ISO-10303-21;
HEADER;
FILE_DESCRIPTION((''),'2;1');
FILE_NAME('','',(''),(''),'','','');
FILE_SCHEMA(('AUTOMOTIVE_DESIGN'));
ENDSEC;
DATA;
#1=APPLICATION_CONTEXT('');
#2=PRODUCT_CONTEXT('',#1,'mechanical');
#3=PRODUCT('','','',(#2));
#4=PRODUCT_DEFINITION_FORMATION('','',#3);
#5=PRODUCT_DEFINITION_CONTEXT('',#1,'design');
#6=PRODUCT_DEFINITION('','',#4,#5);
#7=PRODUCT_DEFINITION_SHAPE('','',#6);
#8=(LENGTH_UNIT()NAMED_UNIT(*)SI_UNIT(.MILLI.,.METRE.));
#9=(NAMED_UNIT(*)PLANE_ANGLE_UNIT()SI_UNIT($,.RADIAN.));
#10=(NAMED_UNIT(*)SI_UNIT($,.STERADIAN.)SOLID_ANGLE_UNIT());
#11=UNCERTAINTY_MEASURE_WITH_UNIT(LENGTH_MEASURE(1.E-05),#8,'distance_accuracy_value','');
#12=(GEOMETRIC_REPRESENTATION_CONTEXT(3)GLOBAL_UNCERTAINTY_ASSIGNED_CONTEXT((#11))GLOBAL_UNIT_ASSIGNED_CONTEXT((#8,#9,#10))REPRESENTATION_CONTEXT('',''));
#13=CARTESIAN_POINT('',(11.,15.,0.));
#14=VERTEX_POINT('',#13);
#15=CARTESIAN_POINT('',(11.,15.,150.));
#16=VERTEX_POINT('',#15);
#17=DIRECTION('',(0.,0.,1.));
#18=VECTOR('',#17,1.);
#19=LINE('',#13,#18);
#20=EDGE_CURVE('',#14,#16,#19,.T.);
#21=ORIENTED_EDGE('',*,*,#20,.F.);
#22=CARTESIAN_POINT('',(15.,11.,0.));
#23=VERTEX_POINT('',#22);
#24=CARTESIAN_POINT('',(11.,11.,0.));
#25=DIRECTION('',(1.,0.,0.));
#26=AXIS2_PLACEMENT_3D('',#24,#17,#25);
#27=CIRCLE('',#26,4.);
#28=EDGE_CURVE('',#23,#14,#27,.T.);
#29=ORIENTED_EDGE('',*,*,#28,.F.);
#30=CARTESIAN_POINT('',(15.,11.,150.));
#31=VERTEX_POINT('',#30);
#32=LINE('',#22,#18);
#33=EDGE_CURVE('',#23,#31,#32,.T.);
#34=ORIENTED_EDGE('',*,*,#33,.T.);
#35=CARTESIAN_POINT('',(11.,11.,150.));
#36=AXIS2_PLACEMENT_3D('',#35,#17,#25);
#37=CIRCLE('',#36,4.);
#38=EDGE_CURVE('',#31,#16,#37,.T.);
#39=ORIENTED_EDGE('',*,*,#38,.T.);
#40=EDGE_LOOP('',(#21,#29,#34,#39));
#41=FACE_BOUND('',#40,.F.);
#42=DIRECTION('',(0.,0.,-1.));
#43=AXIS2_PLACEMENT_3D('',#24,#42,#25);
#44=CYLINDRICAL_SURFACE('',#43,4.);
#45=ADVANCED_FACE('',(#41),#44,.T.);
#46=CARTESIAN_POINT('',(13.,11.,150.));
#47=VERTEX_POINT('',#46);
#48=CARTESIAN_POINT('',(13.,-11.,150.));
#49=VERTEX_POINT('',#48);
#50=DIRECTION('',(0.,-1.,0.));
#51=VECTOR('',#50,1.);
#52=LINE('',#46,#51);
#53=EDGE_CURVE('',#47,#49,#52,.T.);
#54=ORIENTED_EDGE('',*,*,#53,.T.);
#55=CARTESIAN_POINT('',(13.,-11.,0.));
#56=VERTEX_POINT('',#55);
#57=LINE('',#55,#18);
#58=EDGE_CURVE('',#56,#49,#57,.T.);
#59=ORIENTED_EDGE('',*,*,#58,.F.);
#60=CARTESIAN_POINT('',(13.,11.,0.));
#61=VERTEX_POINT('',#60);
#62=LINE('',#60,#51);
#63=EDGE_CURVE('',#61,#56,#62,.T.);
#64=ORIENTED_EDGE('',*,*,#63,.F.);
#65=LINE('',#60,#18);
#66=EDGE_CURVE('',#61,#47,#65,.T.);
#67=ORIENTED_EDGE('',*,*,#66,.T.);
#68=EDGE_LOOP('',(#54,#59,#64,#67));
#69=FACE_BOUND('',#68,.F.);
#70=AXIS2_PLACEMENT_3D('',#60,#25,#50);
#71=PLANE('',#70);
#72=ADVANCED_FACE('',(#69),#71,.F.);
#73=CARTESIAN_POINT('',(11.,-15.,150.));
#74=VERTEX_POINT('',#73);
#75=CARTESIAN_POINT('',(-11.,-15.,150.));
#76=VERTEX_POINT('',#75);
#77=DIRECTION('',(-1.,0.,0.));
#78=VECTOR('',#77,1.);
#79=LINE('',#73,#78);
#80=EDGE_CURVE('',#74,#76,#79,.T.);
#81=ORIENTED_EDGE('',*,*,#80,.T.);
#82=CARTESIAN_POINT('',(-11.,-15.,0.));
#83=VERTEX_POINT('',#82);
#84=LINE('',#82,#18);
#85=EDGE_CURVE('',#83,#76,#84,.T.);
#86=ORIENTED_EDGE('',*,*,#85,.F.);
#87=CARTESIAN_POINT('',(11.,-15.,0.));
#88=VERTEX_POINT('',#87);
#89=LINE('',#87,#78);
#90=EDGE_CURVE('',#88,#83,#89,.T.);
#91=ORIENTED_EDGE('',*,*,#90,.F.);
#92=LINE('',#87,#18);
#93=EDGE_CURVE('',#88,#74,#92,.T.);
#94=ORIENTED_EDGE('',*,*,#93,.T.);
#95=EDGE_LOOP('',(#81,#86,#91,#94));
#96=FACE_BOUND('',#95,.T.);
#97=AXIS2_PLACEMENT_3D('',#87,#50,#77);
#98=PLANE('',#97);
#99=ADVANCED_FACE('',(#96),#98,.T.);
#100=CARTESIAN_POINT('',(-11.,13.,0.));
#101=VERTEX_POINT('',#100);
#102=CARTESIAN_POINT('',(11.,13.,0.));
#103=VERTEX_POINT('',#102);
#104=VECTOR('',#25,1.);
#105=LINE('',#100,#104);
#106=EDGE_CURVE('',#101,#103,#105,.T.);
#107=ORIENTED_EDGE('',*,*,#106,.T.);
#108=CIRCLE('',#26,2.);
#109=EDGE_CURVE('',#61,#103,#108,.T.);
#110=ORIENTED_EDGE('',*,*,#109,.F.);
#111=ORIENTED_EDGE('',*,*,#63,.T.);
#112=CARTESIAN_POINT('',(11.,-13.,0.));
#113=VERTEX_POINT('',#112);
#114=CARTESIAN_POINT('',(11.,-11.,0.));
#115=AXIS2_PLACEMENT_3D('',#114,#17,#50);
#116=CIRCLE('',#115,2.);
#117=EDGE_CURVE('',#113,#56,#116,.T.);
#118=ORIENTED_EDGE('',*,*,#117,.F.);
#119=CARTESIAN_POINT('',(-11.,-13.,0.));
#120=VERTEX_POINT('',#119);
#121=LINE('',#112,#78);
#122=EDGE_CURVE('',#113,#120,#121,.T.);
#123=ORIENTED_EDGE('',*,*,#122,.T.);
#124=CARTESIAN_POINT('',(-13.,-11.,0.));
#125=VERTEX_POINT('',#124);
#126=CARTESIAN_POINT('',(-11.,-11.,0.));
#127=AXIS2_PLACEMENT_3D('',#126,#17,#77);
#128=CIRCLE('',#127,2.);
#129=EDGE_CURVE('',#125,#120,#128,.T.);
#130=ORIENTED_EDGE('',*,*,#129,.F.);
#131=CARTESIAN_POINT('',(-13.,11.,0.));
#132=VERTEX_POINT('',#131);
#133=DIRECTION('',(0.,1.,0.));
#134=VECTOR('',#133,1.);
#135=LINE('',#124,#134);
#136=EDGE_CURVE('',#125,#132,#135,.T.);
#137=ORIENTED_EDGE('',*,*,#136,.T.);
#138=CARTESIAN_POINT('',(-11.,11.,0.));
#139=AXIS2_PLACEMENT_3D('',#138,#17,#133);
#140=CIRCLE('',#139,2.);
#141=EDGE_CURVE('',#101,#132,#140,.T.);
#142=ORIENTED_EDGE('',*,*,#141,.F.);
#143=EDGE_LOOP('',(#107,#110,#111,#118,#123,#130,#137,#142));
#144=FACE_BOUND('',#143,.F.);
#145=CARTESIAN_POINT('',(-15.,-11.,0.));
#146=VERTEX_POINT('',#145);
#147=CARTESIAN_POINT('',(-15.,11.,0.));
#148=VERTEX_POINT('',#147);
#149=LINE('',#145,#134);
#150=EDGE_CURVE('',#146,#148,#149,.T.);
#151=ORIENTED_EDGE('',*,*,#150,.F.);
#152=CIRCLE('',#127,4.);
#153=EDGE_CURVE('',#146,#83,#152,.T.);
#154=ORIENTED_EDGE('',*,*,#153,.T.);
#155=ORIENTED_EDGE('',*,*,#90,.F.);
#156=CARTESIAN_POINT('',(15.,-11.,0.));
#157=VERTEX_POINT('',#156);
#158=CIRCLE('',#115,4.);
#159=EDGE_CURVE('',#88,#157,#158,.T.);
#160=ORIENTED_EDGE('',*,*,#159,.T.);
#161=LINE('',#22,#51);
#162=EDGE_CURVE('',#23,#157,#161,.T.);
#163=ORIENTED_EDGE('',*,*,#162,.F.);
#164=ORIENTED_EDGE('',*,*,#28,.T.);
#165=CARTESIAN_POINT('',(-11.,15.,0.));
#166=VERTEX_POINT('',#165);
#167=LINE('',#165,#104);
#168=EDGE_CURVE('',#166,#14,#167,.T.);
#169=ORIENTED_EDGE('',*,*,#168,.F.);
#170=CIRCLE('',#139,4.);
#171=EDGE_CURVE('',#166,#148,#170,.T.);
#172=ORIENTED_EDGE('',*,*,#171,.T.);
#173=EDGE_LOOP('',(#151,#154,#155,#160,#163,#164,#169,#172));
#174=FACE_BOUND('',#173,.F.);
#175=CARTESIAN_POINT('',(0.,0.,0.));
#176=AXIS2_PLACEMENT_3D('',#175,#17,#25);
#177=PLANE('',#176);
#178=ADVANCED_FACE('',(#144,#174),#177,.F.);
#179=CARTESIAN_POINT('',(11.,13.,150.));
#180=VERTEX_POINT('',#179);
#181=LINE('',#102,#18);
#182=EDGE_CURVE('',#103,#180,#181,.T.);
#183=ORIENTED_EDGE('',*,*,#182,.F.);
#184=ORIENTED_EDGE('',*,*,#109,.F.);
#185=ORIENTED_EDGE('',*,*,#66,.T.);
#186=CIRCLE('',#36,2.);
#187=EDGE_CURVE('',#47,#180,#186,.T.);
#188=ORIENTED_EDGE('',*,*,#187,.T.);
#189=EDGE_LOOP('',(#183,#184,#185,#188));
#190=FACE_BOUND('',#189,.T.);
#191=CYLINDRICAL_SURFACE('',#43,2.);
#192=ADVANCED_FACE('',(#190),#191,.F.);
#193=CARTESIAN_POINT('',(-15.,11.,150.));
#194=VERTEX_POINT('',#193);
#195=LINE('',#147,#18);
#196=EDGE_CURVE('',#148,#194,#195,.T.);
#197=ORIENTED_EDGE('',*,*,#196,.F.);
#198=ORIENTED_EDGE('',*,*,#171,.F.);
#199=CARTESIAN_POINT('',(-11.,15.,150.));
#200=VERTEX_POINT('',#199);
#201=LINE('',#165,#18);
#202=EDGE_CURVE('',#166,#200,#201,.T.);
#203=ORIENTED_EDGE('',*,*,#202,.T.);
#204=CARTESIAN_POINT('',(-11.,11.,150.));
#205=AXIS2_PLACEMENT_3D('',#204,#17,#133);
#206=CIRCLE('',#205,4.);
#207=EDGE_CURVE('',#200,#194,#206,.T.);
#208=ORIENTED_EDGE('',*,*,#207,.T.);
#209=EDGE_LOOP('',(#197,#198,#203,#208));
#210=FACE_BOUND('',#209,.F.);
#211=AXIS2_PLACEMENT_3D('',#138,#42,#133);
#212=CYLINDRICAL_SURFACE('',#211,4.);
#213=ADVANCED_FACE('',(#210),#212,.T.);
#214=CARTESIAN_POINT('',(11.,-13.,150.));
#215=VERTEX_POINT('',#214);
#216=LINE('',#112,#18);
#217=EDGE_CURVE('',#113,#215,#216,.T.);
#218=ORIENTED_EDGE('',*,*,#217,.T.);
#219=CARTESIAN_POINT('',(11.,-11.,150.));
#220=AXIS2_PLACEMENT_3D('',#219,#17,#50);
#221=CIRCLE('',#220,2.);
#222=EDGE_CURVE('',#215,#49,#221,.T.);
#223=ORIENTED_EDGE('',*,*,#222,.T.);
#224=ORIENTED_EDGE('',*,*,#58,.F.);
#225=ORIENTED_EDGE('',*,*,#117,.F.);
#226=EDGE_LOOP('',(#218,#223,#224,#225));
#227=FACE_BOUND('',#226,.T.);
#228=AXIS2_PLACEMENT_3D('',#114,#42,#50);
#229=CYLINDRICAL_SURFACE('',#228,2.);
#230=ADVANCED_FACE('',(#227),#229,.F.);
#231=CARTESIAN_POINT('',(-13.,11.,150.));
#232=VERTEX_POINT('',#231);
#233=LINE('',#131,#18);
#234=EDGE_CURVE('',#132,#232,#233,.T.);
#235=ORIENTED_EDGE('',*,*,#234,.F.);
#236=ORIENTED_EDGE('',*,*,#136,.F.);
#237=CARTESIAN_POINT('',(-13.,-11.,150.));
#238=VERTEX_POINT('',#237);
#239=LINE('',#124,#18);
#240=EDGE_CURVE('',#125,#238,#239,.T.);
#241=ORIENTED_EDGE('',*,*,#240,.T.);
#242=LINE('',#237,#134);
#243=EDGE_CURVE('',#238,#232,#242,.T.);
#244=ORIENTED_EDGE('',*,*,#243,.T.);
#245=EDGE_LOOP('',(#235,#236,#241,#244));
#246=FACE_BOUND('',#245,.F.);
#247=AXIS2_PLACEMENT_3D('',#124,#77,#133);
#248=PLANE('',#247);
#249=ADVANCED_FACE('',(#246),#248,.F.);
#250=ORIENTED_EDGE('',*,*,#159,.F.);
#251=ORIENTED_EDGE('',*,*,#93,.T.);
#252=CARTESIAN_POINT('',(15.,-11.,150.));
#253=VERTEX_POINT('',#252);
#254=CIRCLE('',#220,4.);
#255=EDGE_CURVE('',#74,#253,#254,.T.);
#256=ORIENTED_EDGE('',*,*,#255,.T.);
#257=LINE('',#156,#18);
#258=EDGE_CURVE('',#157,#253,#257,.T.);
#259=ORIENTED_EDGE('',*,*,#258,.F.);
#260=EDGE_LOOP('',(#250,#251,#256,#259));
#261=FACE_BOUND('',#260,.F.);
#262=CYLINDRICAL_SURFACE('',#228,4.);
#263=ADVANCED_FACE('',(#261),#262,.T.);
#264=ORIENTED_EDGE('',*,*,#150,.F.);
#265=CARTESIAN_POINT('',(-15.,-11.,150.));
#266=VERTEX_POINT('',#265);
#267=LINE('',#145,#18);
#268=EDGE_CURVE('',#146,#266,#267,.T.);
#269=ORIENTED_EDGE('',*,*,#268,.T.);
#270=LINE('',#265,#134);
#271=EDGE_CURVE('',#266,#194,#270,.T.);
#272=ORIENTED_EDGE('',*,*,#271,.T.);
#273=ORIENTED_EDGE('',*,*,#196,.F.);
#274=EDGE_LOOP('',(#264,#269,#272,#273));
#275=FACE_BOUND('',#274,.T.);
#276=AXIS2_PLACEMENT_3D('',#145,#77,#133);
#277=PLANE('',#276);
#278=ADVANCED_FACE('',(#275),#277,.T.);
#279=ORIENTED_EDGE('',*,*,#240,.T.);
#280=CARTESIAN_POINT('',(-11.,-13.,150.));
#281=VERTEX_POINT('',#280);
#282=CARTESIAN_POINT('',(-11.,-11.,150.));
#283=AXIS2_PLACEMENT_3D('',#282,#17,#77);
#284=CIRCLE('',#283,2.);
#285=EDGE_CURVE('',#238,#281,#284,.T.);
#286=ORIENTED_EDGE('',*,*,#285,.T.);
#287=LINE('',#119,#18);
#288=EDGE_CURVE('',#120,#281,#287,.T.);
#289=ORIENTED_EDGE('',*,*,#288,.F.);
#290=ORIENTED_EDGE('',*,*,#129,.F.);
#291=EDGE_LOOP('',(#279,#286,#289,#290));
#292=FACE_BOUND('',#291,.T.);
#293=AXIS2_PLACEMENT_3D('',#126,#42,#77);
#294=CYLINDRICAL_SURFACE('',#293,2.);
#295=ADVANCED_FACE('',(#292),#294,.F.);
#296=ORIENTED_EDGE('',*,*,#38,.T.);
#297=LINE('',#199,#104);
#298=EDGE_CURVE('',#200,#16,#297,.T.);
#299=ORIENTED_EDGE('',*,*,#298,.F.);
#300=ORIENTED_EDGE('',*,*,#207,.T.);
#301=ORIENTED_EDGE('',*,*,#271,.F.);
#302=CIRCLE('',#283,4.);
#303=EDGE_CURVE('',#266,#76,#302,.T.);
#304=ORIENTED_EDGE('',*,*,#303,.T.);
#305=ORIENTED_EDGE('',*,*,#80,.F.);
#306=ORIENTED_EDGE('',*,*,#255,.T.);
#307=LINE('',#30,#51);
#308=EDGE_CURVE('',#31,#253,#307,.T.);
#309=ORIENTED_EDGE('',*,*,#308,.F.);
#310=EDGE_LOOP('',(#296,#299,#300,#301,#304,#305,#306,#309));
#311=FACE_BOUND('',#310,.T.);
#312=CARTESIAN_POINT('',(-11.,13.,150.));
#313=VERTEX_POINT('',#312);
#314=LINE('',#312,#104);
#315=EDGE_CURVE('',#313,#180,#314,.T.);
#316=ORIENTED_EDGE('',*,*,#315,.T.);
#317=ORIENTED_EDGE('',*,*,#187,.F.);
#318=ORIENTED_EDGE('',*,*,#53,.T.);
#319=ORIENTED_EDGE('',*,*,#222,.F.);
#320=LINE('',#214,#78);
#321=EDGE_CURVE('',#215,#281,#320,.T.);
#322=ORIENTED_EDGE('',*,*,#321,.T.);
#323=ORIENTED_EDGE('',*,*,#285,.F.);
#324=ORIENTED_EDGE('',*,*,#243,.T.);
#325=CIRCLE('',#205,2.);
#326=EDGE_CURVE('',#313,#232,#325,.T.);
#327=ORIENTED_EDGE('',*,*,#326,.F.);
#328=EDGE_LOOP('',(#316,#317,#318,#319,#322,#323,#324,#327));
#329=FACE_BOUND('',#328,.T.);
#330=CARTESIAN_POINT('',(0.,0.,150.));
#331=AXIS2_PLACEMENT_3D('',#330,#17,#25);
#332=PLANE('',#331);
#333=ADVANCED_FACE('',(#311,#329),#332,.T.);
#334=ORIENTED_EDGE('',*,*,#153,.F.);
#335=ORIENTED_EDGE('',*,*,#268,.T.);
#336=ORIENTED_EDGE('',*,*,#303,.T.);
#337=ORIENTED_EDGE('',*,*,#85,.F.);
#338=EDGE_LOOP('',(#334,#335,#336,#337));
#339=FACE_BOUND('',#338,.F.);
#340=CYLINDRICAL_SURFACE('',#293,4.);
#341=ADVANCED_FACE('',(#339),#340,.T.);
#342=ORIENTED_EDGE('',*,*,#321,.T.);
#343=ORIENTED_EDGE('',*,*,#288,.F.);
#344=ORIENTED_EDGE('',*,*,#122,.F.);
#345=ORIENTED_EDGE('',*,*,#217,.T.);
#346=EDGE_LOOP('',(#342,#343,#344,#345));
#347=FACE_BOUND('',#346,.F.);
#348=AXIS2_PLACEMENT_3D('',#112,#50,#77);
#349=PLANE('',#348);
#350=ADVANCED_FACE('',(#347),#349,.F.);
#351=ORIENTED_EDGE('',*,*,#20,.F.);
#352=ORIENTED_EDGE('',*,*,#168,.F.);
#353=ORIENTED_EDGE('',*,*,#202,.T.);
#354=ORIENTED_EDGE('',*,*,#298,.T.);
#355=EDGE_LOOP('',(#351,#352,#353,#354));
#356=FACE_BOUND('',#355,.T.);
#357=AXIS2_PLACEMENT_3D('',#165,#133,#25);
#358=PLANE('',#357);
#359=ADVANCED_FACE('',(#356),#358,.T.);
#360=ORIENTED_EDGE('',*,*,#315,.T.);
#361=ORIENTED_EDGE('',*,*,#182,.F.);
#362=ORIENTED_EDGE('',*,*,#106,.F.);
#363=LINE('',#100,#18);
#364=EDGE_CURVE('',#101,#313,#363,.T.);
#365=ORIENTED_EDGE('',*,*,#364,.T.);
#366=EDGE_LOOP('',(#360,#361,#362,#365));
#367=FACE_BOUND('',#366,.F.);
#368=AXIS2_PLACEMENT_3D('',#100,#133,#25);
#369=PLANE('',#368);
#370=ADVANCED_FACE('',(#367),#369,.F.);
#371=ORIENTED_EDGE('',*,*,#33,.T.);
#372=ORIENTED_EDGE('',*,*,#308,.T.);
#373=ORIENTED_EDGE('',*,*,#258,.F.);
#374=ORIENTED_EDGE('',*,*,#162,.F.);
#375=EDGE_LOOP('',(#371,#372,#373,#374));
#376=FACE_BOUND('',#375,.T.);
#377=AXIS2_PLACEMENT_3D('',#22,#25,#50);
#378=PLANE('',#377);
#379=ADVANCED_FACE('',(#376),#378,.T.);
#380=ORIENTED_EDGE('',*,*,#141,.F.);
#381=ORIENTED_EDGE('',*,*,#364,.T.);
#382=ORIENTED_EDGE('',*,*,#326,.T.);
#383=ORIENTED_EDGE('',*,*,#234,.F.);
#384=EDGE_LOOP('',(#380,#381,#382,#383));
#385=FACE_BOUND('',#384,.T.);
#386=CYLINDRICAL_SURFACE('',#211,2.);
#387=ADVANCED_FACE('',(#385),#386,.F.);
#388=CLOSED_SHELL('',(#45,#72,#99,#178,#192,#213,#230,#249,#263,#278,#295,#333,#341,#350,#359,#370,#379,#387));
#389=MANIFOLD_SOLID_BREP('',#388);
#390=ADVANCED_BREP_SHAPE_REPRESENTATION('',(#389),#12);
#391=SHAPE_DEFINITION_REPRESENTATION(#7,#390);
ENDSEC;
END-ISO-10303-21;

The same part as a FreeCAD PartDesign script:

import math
import FreeCAD as App
import Part
import Sketcher
from FreeCAD import Vector
Q = App.Units.Quantity

doc = App.newDocument("Part")
body = doc.addObject("PartDesign::Body", "Body")

sketch1 = body.newObject("Sketcher::SketchObject", "Sketch")
sketch1.AttachmentSupport = (doc.getObject("XY_Plane"), [""])
sketch1.MapMode = "FlatFace"
sketch1.addGeometry([
    Part.LineSegment(Vector(-15, 11, 0), Vector(-15, -11, 0)),
    Part.ArcOfCircle(Part.Circle(Vector(-11, -11, 0), Vector(0, 0, 1), 4), math.radians(180), math.radians(270)),
    Part.LineSegment(Vector(-11, -15, 0), Vector(11, -15, 0)),
    Part.ArcOfCircle(Part.Circle(Vector(11, -11, 0), Vector(0, 0, 1), 4), math.radians(-90), math.radians(0)),
    Part.LineSegment(Vector(15, -11, 0), Vector(15, 11, 0)),
    Part.ArcOfCircle(Part.Circle(Vector(11, 11, 0), Vector(0, 0, 1), 4), math.radians(0), math.radians(90)),
    Part.LineSegment(Vector(11, 15, 0), Vector(-11, 15, 0)),
    Part.ArcOfCircle(Part.Circle(Vector(-11, 11, 0), Vector(0, 0, 1), 4), math.radians(90), math.radians(180)),
    Part.ArcOfCircle(Part.Circle(Vector(-11, 11, 0), Vector(0, 0, 1), 2), math.radians(90), math.radians(180)),
    Part.LineSegment(Vector(-11, 13, 0), Vector(11, 13, 0)),
    Part.ArcOfCircle(Part.Circle(Vector(11, 11, 0), Vector(0, 0, 1), 2), math.radians(0), math.radians(90)),
    Part.LineSegment(Vector(13, 11, 0), Vector(13, -11, 0)),
    Part.ArcOfCircle(Part.Circle(Vector(11, -11, 0), Vector(0, 0, 1), 2), math.radians(-90), math.radians(0)),
    Part.LineSegment(Vector(11, -13, 0), Vector(-11, -13, 0)),
    Part.ArcOfCircle(Part.Circle(Vector(-11, -11, 0), Vector(0, 0, 1), 2), math.radians(180), math.radians(270)),
    Part.LineSegment(Vector(-13, -11, 0), Vector(-13, 11, 0)),
], False)
sketch1.addConstraint([
    Sketcher.Constraint("Tangent", 0, 2, 1, 1),
    Sketcher.Constraint("Tangent", 1, 2, 2, 1),
    Sketcher.Constraint("Tangent", 2, 2, 3, 1),
    Sketcher.Constraint("Tangent", 3, 2, 4, 1),
    Sketcher.Constraint("Tangent", 4, 2, 5, 1),
    Sketcher.Constraint("Tangent", 5, 2, 6, 1),
    Sketcher.Constraint("Tangent", 6, 2, 7, 1),
    Sketcher.Constraint("Tangent", 7, 2, 0, 1),
    Sketcher.Constraint("Tangent", 8, 1, 9, 1),
    Sketcher.Constraint("Tangent", 9, 2, 10, 2),
    Sketcher.Constraint("Tangent", 10, 1, 11, 1),
    Sketcher.Constraint("Tangent", 11, 2, 12, 2),
    Sketcher.Constraint("Tangent", 12, 1, 13, 1),
    Sketcher.Constraint("Tangent", 13, 2, 14, 2),
    Sketcher.Constraint("Tangent", 14, 1, 15, 1),
    Sketcher.Constraint("Tangent", 15, 2, 8, 2),
    Sketcher.Constraint("Vertical", 0),
    Sketcher.Constraint("Horizontal", 2),
    Sketcher.Constraint("Vertical", 4),
    Sketcher.Constraint("Horizontal", 6),
    Sketcher.Constraint("Horizontal", 9),
    Sketcher.Constraint("Vertical", 11),
    Sketcher.Constraint("Horizontal", 13),
    Sketcher.Constraint("Vertical", 15),
    Sketcher.Constraint("Coincident", 8, 3, 7, 3),
    Sketcher.Constraint("Coincident", 10, 3, 5, 3),
    Sketcher.Constraint("Coincident", 12, 3, 3, 3),
    Sketcher.Constraint("Equal", 1, 3),
    Sketcher.Constraint("Equal", 3, 5),
    Sketcher.Constraint("Equal", 5, 7),
    Sketcher.Constraint("Equal", 12, 14),
    Sketcher.Constraint("Symmetric", 1, 3, 5, 3, -1, 1),
    Sketcher.Constraint("Equal", 13, 0),
    Sketcher.Constraint("Radius", 1, Q("4 mm")),
    Sketcher.Constraint("Radius", 8, Q("2 mm")),
    Sketcher.Constraint("DistanceX", 0, 2, -1, 1, Q("15 mm")),
])
pad1 = body.newObject("PartDesign::Pad", "Pad")
pad1.Profile = sketch1
pad1.Length = 150

doc.recompute()
